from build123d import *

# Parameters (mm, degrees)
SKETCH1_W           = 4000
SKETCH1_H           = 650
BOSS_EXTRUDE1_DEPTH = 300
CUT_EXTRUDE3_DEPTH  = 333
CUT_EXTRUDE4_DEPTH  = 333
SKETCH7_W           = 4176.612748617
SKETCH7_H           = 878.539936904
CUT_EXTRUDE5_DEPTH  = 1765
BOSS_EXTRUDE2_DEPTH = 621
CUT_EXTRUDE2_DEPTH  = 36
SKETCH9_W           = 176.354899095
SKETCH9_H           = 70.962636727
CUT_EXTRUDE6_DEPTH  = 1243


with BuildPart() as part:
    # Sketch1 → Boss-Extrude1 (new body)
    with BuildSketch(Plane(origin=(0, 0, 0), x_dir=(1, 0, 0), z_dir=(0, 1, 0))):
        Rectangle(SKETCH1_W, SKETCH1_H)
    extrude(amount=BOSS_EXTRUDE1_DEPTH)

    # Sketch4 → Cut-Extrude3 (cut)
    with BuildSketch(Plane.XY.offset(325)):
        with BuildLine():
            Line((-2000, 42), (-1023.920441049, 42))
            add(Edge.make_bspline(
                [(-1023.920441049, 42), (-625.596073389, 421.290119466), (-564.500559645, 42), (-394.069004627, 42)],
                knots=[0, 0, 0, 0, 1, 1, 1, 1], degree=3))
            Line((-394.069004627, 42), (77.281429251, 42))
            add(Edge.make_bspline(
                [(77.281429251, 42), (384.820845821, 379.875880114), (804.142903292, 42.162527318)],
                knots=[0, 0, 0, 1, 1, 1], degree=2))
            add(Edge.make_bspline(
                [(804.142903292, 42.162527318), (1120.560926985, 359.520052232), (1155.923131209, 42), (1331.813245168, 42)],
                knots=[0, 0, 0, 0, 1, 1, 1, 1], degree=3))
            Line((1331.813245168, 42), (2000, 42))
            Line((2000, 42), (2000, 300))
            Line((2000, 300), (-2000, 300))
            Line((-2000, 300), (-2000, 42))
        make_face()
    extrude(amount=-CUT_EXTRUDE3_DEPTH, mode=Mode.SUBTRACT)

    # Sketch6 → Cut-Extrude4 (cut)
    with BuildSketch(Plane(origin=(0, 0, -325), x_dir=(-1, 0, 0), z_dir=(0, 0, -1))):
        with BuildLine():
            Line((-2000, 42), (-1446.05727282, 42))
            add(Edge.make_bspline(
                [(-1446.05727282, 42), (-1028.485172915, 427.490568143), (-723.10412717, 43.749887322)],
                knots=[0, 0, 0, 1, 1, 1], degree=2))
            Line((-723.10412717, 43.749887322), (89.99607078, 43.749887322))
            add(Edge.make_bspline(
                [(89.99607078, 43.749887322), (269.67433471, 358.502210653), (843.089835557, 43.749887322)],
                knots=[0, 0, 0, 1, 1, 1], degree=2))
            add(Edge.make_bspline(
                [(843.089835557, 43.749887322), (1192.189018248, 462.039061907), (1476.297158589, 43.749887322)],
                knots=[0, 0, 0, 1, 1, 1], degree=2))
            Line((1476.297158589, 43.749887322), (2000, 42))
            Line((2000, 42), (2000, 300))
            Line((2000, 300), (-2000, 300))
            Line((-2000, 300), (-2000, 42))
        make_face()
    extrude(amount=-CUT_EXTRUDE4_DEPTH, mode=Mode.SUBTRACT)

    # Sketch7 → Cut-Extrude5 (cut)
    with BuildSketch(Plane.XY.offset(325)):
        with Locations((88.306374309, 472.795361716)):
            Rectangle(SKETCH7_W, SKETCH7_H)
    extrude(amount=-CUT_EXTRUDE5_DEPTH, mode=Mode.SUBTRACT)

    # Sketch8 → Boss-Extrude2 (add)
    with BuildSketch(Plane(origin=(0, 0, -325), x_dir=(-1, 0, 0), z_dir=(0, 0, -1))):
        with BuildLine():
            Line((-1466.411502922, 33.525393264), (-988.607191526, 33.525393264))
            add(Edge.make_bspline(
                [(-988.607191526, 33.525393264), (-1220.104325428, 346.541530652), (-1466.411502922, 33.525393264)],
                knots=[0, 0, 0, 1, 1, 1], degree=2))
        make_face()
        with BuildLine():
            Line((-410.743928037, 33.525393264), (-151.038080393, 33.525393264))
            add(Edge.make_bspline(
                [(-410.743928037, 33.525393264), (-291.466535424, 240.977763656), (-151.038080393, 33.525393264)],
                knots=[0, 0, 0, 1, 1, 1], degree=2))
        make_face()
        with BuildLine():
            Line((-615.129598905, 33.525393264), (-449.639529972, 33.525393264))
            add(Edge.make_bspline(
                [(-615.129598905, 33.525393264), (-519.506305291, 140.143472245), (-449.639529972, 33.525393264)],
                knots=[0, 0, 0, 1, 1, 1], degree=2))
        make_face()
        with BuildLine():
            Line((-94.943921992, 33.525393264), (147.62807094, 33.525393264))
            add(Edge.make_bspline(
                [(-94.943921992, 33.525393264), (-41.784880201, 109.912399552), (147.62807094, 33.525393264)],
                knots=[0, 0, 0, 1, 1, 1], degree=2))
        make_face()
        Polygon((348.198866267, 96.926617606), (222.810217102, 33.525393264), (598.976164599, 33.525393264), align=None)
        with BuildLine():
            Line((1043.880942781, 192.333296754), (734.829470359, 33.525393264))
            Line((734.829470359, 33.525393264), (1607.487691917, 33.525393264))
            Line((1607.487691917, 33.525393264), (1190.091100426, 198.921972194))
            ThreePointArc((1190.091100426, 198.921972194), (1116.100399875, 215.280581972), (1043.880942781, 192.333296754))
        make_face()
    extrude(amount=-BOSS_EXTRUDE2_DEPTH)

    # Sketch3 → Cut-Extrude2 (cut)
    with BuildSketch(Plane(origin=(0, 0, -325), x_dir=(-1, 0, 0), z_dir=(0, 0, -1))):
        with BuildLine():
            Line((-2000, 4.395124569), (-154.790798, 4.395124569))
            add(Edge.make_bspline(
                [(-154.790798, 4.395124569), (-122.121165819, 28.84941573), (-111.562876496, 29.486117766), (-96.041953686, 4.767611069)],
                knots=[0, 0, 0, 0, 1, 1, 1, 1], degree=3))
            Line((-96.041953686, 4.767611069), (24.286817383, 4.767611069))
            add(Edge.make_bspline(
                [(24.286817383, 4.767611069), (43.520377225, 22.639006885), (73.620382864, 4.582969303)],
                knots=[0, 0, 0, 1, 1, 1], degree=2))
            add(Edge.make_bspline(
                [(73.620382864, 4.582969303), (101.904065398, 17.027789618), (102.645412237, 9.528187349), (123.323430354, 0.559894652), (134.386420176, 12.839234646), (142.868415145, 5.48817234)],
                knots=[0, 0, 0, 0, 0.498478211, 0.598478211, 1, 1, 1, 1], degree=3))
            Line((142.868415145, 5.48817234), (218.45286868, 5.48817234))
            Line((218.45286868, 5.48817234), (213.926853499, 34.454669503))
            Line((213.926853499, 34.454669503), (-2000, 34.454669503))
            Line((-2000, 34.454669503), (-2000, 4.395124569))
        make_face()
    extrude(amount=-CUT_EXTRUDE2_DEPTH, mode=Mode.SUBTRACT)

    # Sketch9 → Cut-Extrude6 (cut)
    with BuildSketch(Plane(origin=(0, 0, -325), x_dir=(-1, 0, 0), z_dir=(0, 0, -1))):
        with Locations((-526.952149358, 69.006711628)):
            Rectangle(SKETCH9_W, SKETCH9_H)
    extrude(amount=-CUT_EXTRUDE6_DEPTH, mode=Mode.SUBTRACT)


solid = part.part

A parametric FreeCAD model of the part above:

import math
import FreeCAD as App
import Part
import Sketcher
Q = App.Units.Quantity

doc = App.newDocument("Part")
body = doc.addObject("PartDesign::Body", "Body")

sketch1 = body.newObject("Sketcher::SketchObject", "Sketch")
sketch1.AttachmentSupport = (doc.getObject("XZ_Plane"), [""])
sketch1.MapMode = "FlatFace"
sketch1.addGeometry([
    Part.LineSegment(App.Vector(-2000, -325, 0), App.Vector(-2000, 325, 0)),
    Part.LineSegment(App.Vector(-2000, 325, 0), App.Vector(2000, 325, 0)),
    Part.LineSegment(App.Vector(2000, 325, 0), App.Vector(2000, -325, 0)),
    Part.LineSegment(App.Vector(2000, -325, 0), App.Vector(-2000, -325, 0)),
], False)
sketch1.addConstraint([
    Sketcher.Constraint("Coincident", 0, 2, 1, 1),
    Sketcher.Constraint("Coincident", 1, 2, 2, 1),
    Sketcher.Constraint("Coincident", 2, 2, 3, 1),
    Sketcher.Constraint("Coincident", 3, 2, 0, 1),
    Sketcher.Constraint("Vertical", 0),
    Sketcher.Constraint("Horizontal", 1),
    Sketcher.Constraint("Vertical", 2),
    Sketcher.Constraint("Horizontal", 3),
    Sketcher.Constraint("Symmetric", 0, 2, 2, 2, -1, 1),
    Sketcher.Constraint("DistanceX", 1, 1, 1, 2, Q("4000 mm")),
    Sketcher.Constraint("DistanceY", 0, 1, 0, 2, Q("650 mm")),
])
pad1 = body.newObject("PartDesign::Pad", "Pad")
pad1.Profile = sketch1
pad1.Length = 300
pad1.Reversed = True

sketch2 = body.newObject("Sketcher::SketchObject", "Sketch001")
sketch2.AttachmentSupport = (doc.getObject("XY_Plane"), [""])
sketch2.MapMode = "FlatFace"
sketch2.AttachmentOffset = App.Placement(App.Vector(0, 0, 325), App.Rotation())
sketch2.addGeometry([
    Part.LineSegment(App.Vector(-2000, 42, 0), App.Vector(-1023.920441, 42, 0)),
    Part.BSplineCurve([App.Vector(-1023.920441, 42, 0), App.Vector(-625.596073, 421.290119, 0), App.Vector(-564.50056, 42, 0), App.Vector(-394.069005, 42, 0)], [4, 4], [0, 1], False, 3, [1, 1, 1, 1], False),
    Part.LineSegment(App.Vector(-394.069005, 42, 0), App.Vector(77.281429, 42, 0)),
    Part.BSplineCurve([App.Vector(77.281429, 42, 0), App.Vector(384.820846, 379.87588, 0), App.Vector(804.142903, 42.162527, 0)], [3, 3], [0, 1], False, 2, [1, 1, 1], False),
    Part.BSplineCurve([App.Vector(804.142903, 42.162527, 0), App.Vector(1120.560927, 359.520052, 0), App.Vector(1155.923131, 42, 0), App.Vector(1331.813245, 42, 0)], [4, 4], [0, 1], False, 3, [1, 1, 1, 1], False),
    Part.LineSegment(App.Vector(1331.813245, 42, 0), App.Vector(2000, 42, 0)),
    Part.LineSegment(App.Vector(2000, 42, 0), App.Vector(2000, 300, 0)),
    Part.LineSegment(App.Vector(2000, 300, 0), App.Vector(-2000, 300, 0)),
    Part.LineSegment(App.Vector(-2000, 300, 0), App.Vector(-2000, 42, 0)),
], False)
sketch2.addConstraint([
    Sketcher.Constraint("Block", 1),
    Sketcher.Constraint("Block", 3),
    Sketcher.Constraint("Block", 4),
    Sketcher.Constraint("Coincident", 0, 2, 1, 1),
    Sketcher.Constraint("Coincident", 1, 2, 2, 1),
    Sketcher.Constraint("Coincident", 2, 2, 3, 1),
    Sketcher.Constraint("Coincident", 4, 2, 5, 1),
    Sketcher.Constraint("Coincident", 5, 2, 6, 1),
    Sketcher.Constraint("Coincident", 6, 2, 7, 1),
    Sketcher.Constraint("Coincident", 7, 2, 8, 1),
    Sketcher.Constraint("Coincident", 8, 2, 0, 1),
    Sketcher.Constraint("Horizontal", 0),
    Sketcher.Constraint("Horizontal", 5),
    Sketcher.Constraint("Vertical", 6),
    Sketcher.Constraint("Horizontal", 7),
    Sketcher.Constraint("Vertical", 8),
    Sketcher.Constraint("DistanceX", 7, 2, 7, 1, Q("4000 mm")),
    Sketcher.Constraint("DistanceY", 6, 1, 6, 2, Q("258 mm")),
    Sketcher.Constraint("DistanceX", -1, 1, 5, 2, Q("2000 mm")),
])
pocket1 = body.newObject("PartDesign::Pocket", "Pocket")
pocket1.Profile = sketch2
pocket1.Length = 333

sketch3 = body.newObject("Sketcher::SketchObject", "Sketch002")
sketch3.AttachmentSupport = (doc.getObject("XY_Plane"), [""])
sketch3.MapMode = "FlatFace"
sketch3.AttachmentOffset = App.Placement(App.Vector(0, 0, -325), App.Rotation())
sketch3.addGeometry([
    Part.LineSegment(App.Vector(2000, 42, 0), App.Vector(1446.057273, 42, 0)),
    Part.BSplineCurve([App.Vector(1446.057273, 42, 0), App.Vector(1028.485173, 427.490568, 0), App.Vector(723.104127, 43.749887, 0)], [3, 3], [0, 1], False, 2, [1, 1, 1], False),
    Part.LineSegment(App.Vector(723.104127, 43.749887, 0), App.Vector(-89.996071, 43.749887, 0)),
    Part.BSplineCurve([App.Vector(-89.996071, 43.749887, 0), App.Vector(-269.674335, 358.502211, 0), App.Vector(-843.089836, 43.749887, 0)], [3, 3], [0, 1], False, 2, [1, 1, 1], False),
    Part.BSplineCurve([App.Vector(-843.089836, 43.749887, 0), App.Vector(-1192.189018, 462.039062, 0), App.Vector(-1476.297159, 43.749887, 0)], [3, 3], [0, 1], False, 2, [1, 1, 1], False),
    Part.LineSegment(App.Vector(-1476.297159, 43.749887, 0), App.Vector(-2000, 42, 0)),
    Part.LineSegment(App.Vector(-2000, 42, 0), App.Vector(-2000, 300, 0)),
    Part.LineSegment(App.Vector(-2000, 300, 0), App.Vector(2000, 300, 0)),
    Part.LineSegment(App.Vector(2000, 300, 0), App.Vector(2000, 42, 0)),
], False)
sketch3.addConstraint([
    Sketcher.Constraint("Block", 1),
    Sketcher.Constraint("Block", 3),
    Sketcher.Constraint("Block", 4),
    Sketcher.Constraint("Coincident", 0, 2, 1, 1),
    Sketcher.Constraint("Coincident", 1, 2, 2, 1),
    Sketcher.Constraint("Coincident", 2, 2, 3, 1),
    Sketcher.Constraint("Coincident", 4, 2, 5, 1),
    Sketcher.Constraint("Coincident", 5, 2, 6, 1),
    Sketcher.Constraint("Coincident", 6, 2, 7, 1),
    Sketcher.Constraint("Coincident", 7, 2, 8, 1),
    Sketcher.Constraint("Coincident", 8, 2, 0, 1),
    Sketcher.Constraint("Horizontal", 0),
    Sketcher.Constraint("Vertical", 6),
    Sketcher.Constraint("Horizontal", 7),
    Sketcher.Constraint("Vertical", 8),
    Sketcher.Constraint("Symmetric", 5, 2, 8, 2, -2),
    Sketcher.Constraint("DistanceX", 7, 1, 7, 2, Q("4000 mm")),
    Sketcher.Constraint("DistanceY", 6, 1, 6, 2, Q("258 mm")),
])
pocket2 = body.newObject("PartDesign::Pocket", "Pocket001")
pocket2.Profile = sketch3
pocket2.Length = 333
pocket2.Reversed = True

sketch4 = body.newObject("Sketcher::SketchObject", "Sketch003")
sketch4.AttachmentSupport = (doc.getObject("XY_Plane"), [""])
sketch4.MapMode = "FlatFace"
sketch4.AttachmentOffset = App.Placement(App.Vector(0, 0, 325), App.Rotation())
sketch4.addGeometry([
    Part.LineSegment(App.Vector(-2000, 912.06533, 0), App.Vector(-2000, 33.525393, 0)),
    Part.LineSegment(App.Vector(-2000, 33.525393, 0), App.Vector(2176.612749, 33.525393, 0)),
    Part.LineSegment(App.Vector(2176.612749, 33.525393, 0), App.Vector(2176.612749, 912.06533, 0)),
    Part.LineSegment(App.Vector(2176.612749, 912.06533, 0), App.Vector(-2000, 912.06533, 0)),
], False)
sketch4.addConstraint([
    Sketcher.Constraint("Coincident", 0, 2, 1, 1),
    Sketcher.Constraint("Coincident", 1, 2, 2, 1),
    Sketcher.Constraint("Coincident", 2, 2, 3, 1),
    Sketcher.Constraint("Coincident", 3, 2, 0, 1),
    Sketcher.Constraint("Vertical", 0),
    Sketcher.Constraint("Horizontal", 1),
    Sketcher.Constraint("Vertical", 2),
    Sketcher.Constraint("Horizontal", 3),
    Sketcher.Constraint("DistanceX", 0, 2, -1, 1, Q("2000 mm")),
    Sketcher.Constraint("DistanceX", 1, 1, 1, 2, Q("4176.612749 mm")),
    Sketcher.Constraint("DistanceY", 0, 2, 0, 1, Q("878.539937 mm")),
    Sketcher.Constraint("DistanceY", -1, 1, 2, 2, Q("912.06533 mm")),
])
pocket3 = body.newObject("PartDesign::Pocket", "Pocket002")
pocket3.Profile = sketch4
pocket3.Length = 1765

sketch5 = body.newObject("Sketcher::SketchObject", "Sketch004")
sketch5.AttachmentSupport = (doc.getObject("XY_Plane"), [""])
sketch5.MapMode = "FlatFace"
sketch5.AttachmentOffset = App.Placement(App.Vector(0, 0, -325), App.Rotation())
sketch5.addGeometry([
    Part.LineSegment(App.Vector(1466.411503, 33.525393, 0), App.Vector(988.607192, 33.525393, 0)),
    Part.BSplineCurve([App.Vector(988.607192, 33.525393, 0), App.Vector(1220.104325, 346.541531, 0), App.Vector(1466.411503, 33.525393, 0)], [3, 3], [0, 1], False, 2, [1, 1, 1], False),
    Part.LineSegment(App.Vector(410.743928, 33.525393, 0), App.Vector(151.03808, 33.525393, 0)),
    Part.BSplineCurve([App.Vector(410.743928, 33.525393, 0), App.Vector(291.466535, 240.977764, 0), App.Vector(151.03808, 33.525393, 0)], [3, 3], [0, 1], False, 2, [1, 1, 1], False),
    Part.LineSegment(App.Vector(615.129599, 33.525393, 0), App.Vector(449.63953, 33.525393, 0)),
    Part.BSplineCurve([App.Vector(615.129599, 33.525393, 0), App.Vector(519.506305, 140.143472, 0), App.Vector(449.63953, 33.525393, 0)], [3, 3], [0, 1], False, 2, [1, 1, 1], False),
    Part.LineSegment(App.Vector(94.943922, 33.525393, 0), App.Vector(-147.628071, 33.525393, 0)),
    Part.BSplineCurve([App.Vector(94.943922, 33.525393, 0), App.Vector(41.78488, 109.9124, 0), App.Vector(-147.628071, 33.525393, 0)], [3, 3], [0, 1], False, 2, [1, 1, 1], False),
    Part.LineSegment(App.Vector(-348.198866, 96.926618, 0), App.Vector(-222.810217, 33.525393, 0)),
    Part.LineSegment(App.Vector(-222.810217, 33.525393, 0), App.Vector(-598.976165, 33.525393, 0)),
    Part.LineSegment(App.Vector(-598.976165, 33.525393, 0), App.Vector(-348.198866, 96.926618, 0)),
    Part.LineSegment(App.Vector(-1043.880943, 192.333297, 0), App.Vector(-734.82947, 33.525393, 0)),
    Part.LineSegment(App.Vector(-734.82947, 33.525393, 0), App.Vector(-1607.487692, 33.525393, 0)),
    Part.LineSegment(App.Vector(-1607.487692, 33.525393, 0), App.Vector(-1190.0911, 198.921972, 0)),
    Part.ArcOfCircle(Part.Circle(App.Vector(-1122.670353, 69.485889, 0), App.Vector(0, 0, 1), 145.942649), math.radians(57.325512), math.radians(117.514134)),
], False)
sketch5.addConstraint([
    Sketcher.Constraint("Block", 1),
    Sketcher.Constraint("Block", 3),
    Sketcher.Constraint("Block", 5),
    Sketcher.Constraint("Block", 7),
    Sketcher.Constraint("Coincident", 0, 1, 1, 2),
    Sketcher.Constraint("Coincident", 1, 1, 0, 2),
    Sketcher.Constraint("Coincident", 2, 1, 3, 1),
    Sketcher.Constraint("Coincident", 3, 2, 2, 2),
    Sketcher.Constraint("Coincident", 4, 1, 5, 1),
    Sketcher.Constraint("Coincident", 5, 2, 4, 2),
    Sketcher.Constraint("Coincident", 6, 1, 7, 1),
    Sketcher.Constraint("Coincident", 7, 2, 6, 2),
    Sketcher.Constraint("Coincident", 8, 2, 9, 1),
    Sketcher.Constraint("Coincident", 9, 2, 10, 1),
    Sketcher.Constraint("Coincident", 10, 2, 8, 1),
    Sketcher.Constraint("Coincident", 11, 2, 12, 1),
    Sketcher.Constraint("Coincident", 12, 2, 13, 1),
    Sketcher.Constraint("Coincident", 13, 2, 14, 2),
    Sketcher.Constraint("Coincident", 14, 1, 11, 1),
    Sketcher.Constraint("Horizontal", 9),
    Sketcher.Constraint("Horizontal", 12),
    Sketcher.Constraint("Horizontal", 6, 1, 8, 2),
    Sketcher.Constraint("Horizontal", 9, 2, 11, 2),
    Sketcher.Constraint("Radius", 14, Q("145.942649 mm")),
    Sketcher.Constraint("DistanceX", 12, 2, 12, 1, Q("872.658222 mm")),
    Sketcher.Constraint("DistanceX", 13, 2, -1, 1, Q("1190.0911 mm")),
    Sketcher.Constraint("DistanceX", 9, 2, 10, 2, Q("250.777298 mm")),
    Sketcher.Constraint("Distance", 8, Q("140.506329 mm")),
    Sketcher.Constraint("Distance", 10, Q("258.66768 mm")),
    Sketcher.Constraint("DistanceY", -1, 1, 14, 3, Q("69.485889 mm")),
    Sketcher.Constraint("DistanceX", 11, 2, -1, 1, Q("734.82947 mm")),
    Sketcher.Constraint("DistanceX", 14, 3, 2, 1, Q("1533.414281 mm")),
    Sketcher.Constraint("DistanceX", 8, 2, 6, 1, Q("317.754139 mm")),
    Sketcher.Constraint("DistanceX", 14, 3, 14, 1, Q("78.78941 mm")),
])
pad2 = body.newObject("PartDesign::Pad", "Pad001")
pad2.Profile = sketch5
pad2.Length = 621

sketch6 = body.newObject("Sketcher::SketchObject", "Sketch005")
sketch6.AttachmentSupport = (doc.getObject("XY_Plane"), [""])
sketch6.MapMode = "FlatFace"
sketch6.AttachmentOffset = App.Placement(App.Vector(0, 0, -325), App.Rotation())
sketch6.addGeometry([
    Part.LineSegment(App.Vector(2000, 4.395125, 0), App.Vector(154.790798, 4.395125, 0)),
    Part.BSplineCurve([App.Vector(154.790798, 4.395125, 0), App.Vector(122.121166, 28.849416, 0), App.Vector(111.562876, 29.486118, 0), App.Vector(96.041954, 4.767611, 0)], [4, 4], [0, 1], False, 3, [1, 1, 1, 1], False),
    Part.LineSegment(App.Vector(96.041954, 4.767611, 0), App.Vector(-24.286817, 4.767611, 0)),
    Part.BSplineCurve([App.Vector(-24.286817, 4.767611, 0), App.Vector(-43.520377, 22.639007, 0), App.Vector(-73.620383, 4.582969, 0)], [3, 3], [0, 1], False, 2, [1, 1, 1], False),
    Part.BSplineCurve([App.Vector(-73.620383, 4.582969, 0), App.Vector(-101.904065, 17.02779, 0), App.Vector(-102.645412, 9.528187, 0), App.Vector(-123.32343, 0.559895, 0), App.Vector(-134.38642, 12.839235, 0), App.Vector(-142.868415, 5.488172, 0)], [4, 1, 1, 4], [0, 0.498478211, 0.598478211, 1], False, 3, [1, 1, 1, 1, 1, 1], False),
    Part.LineSegment(App.Vector(-142.868415, 5.488172, 0), App.Vector(-218.452869, 5.488172, 0)),
    Part.LineSegment(App.Vector(-218.452869, 5.488172, 0), App.Vector(-213.926853, 34.45467, 0)),
    Part.LineSegment(App.Vector(-213.926853, 34.45467, 0), App.Vector(2000, 34.45467, 0)),
    Part.LineSegment(App.Vector(2000, 34.45467, 0), App.Vector(2000, 4.395125, 0)),
], False)
sketch6.addConstraint([
    Sketcher.Constraint("Block", 1),
    Sketcher.Constraint("Block", 3),
    Sketcher.Constraint("Block", 4),
    Sketcher.Constraint("Coincident", 0, 2, 1, 1),
    Sketcher.Constraint("Coincident", 1, 2, 2, 1),
    Sketcher.Constraint("Coincident", 2, 2, 3, 1),
    Sketcher.Constraint("Coincident", 4, 2, 5, 1),
    Sketcher.Constraint("Coincident", 5, 2, 6, 1),
    Sketcher.Constraint("Coincident", 6, 2, 7, 1),
    Sketcher.Constraint("Coincident", 7, 2, 8, 1),
    Sketcher.Constraint("Coincident", 8, 2, 0, 1),
    Sketcher.Constraint("Horizontal", 0),
    Sketcher.Constraint("Horizontal", 5),
    Sketcher.Constraint("Horizontal", 7),
    Sketcher.Constraint("Vertical", 8),
    Sketcher.Constraint("DistanceX", -1, 1, 7, 2, Q("2000 mm")),
    Sketcher.Constraint("Distance", 6, Q("29.31796 mm")),
    Sketcher.Constraint("DistanceX", 5, 2, 5, 1, Q("75.584454 mm")),
    Sketcher.Constraint("DistanceX", 7, 1, 7, 2, Q("2213.926853 mm")),
])
pocket4 = body.newObject("PartDesign::Pocket", "Pocket003")
pocket4.Profile = sketch6
pocket4.Length = 36
pocket4.Reversed = True

sketch7 = body.newObject("Sketcher::SketchObject", "Sketch006")
sketch7.AttachmentSupport = (doc.getObject("XY_Plane"), [""])
sketch7.MapMode = "FlatFace"
sketch7.AttachmentOffset = App.Placement(App.Vector(0, 0, -325), App.Rotation())
sketch7.addGeometry([
    Part.LineSegment(App.Vector(615.129599, 104.48803, 0), App.Vector(615.129599, 33.525393, 0)),
    Part.LineSegment(App.Vector(615.129599, 33.525393, 0), App.Vector(438.7747, 33.525393, 0)),
    Part.LineSegment(App.Vector(438.7747, 33.525393, 0), App.Vector(438.7747, 104.48803, 0)),
    Part.LineSegment(App.Vector(438.7747, 104.48803, 0), App.Vector(615.129599, 104.48803, 0)),
], False)
sketch7.addConstraint([
    Sketcher.Constraint("Coincident", 0, 2, 1, 1),
    Sketcher.Constraint("Coincident", 1, 2, 2, 1),
    Sketcher.Constraint("Coincident", 2, 2, 3, 1),
    Sketcher.Constraint("Coincident", 3, 2, 0, 1),
    Sketcher.Constraint("Vertical", 0),
    Sketcher.Constraint("Horizontal", 1),
    Sketcher.Constraint("Vertical", 2),
    Sketcher.Constraint("Horizontal", 3),
    Sketcher.Constraint("DistanceX", 1, 2, 1, 1, Q("176.354899 mm")),
    Sketcher.Constraint("DistanceX", -1, 1, 0, 2, Q("615.129599 mm")),
    Sketcher.Constraint("DistanceY", 0, 2, 0, 1, Q("70.962637 mm")),
    Sketcher.Constraint("DistanceY", -1, 1, 2, 2, Q("104.48803 mm")),
])
pocket5 = body.newObject("PartDesign::Pocket", "Pocket004")
pocket5.Profile = sketch7
pocket5.Length = 1243
pocket5.Reversed = True

doc.recompute()
